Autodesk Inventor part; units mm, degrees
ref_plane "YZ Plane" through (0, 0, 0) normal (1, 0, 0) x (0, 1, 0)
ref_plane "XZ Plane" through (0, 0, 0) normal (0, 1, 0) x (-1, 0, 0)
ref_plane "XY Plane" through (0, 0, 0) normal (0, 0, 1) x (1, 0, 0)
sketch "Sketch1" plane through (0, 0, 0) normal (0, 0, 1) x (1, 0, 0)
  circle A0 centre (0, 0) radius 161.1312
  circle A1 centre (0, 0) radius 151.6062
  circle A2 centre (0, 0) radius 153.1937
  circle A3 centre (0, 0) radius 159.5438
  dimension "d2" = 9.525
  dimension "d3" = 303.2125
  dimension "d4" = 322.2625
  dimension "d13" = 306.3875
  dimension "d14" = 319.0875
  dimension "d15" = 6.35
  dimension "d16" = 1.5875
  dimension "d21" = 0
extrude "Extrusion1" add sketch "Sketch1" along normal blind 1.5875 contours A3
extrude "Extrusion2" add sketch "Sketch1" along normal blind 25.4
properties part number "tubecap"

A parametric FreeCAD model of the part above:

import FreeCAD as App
import Part
import Sketcher
Q = App.Units.Quantity

doc = App.newDocument("Part")
params = doc.addObject("Spreadsheet::Sheet", "Params")
for row, (alias, value) in enumerate([
    ("sketch1_diameter", "12.5625 in"),
    ("sketch1_diameter2", "12.0625 in"),
    ("pad1_length", "0.0625 in"),
    ("sketch2_diameter", "12.6875 in"),
    ("sketch2_diameter2", "12.5625 in"),
    ("sketch2_diameter3", "12.0625 in"),
    ("sketch2_diameter4", "11.9375 in"),
    ("pad2_length", "1 in"),
], start=1):
    params.set(f"A{row}", alias)
    params.set(f"B{row}", "=" + value)
    params.setAlias(f"B{row}", alias)

body = doc.addObject("PartDesign::Body", "Body")

# Sketch on XY plane
sketch1 = body.newObject("Sketcher::SketchObject", "Sketch")
sketch1.AttachmentSupport = (doc.getObject("XY_Plane"), [""])
sketch1.MapMode = "FlatFace"
sketch1.addGeometry(Part.Circle(App.Vector(0, 0, 0), App.Vector(0, 0, 1), 159.5438), False)
sketch1.addGeometry(Part.Circle(App.Vector(0, 0, 0), App.Vector(0, 0, 1), 153.1937), False)
sketch1.addConstraint(Sketcher.Constraint("Coincident", 0, 3, -1, 1))
sketch1.addConstraint(Sketcher.Constraint("Coincident", 1, 3, -1, 1))
sketch1.addConstraint(Sketcher.Constraint("Diameter", 0, Q("12.5625 in")))
sketch1.addConstraint(Sketcher.Constraint("Diameter", 1, Q("12.0625 in")))
sketch1.setExpression("Constraints[2]", "Params.sketch1_diameter")
sketch1.setExpression("Constraints[3]", "Params.sketch1_diameter2")
pad1 = body.newObject("PartDesign::Pad", "Pad")
pad1.Profile = sketch1
pad1.setExpression("Length", "Params.pad1_length")

# Sketch on XY plane
sketch2 = body.newObject("Sketcher::SketchObject", "Sketch001")
sketch2.AttachmentSupport = (doc.getObject("XY_Plane"), [""])
sketch2.MapMode = "FlatFace"
sketch2.addGeometry(Part.Circle(App.Vector(0, 0, 0), App.Vector(0, 0, 1), 161.1312), False)
sketch2.addGeometry(Part.Circle(App.Vector(0, 0, 0), App.Vector(0, 0, 1), 159.5438), False)
sketch2.addGeometry(Part.Circle(App.Vector(0, 0, 0), App.Vector(0, 0, 1), 153.1937), False)
sketch2.addGeometry(Part.Circle(App.Vector(0, 0, 0), App.Vector(0, 0, 1), 151.6062), False)
sketch2.addConstraint(Sketcher.Constraint("Coincident", 0, 3, -1, 1))
sketch2.addConstraint(Sketcher.Constraint("Coincident", 1, 3, -1, 1))
sketch2.addConstraint(Sketcher.Constraint("Coincident", 2, 3, -1, 1))
sketch2.addConstraint(Sketcher.Constraint("Coincident", 3, 3, -1, 1))
sketch2.addConstraint(Sketcher.Constraint("Diameter", 0, Q("12.6875 in")))
sketch2.addConstraint(Sketcher.Constraint("Diameter", 1, Q("12.5625 in")))
sketch2.addConstraint(Sketcher.Constraint("Diameter", 2, Q("12.0625 in")))
sketch2.addConstraint(Sketcher.Constraint("Diameter", 3, Q("11.9375 in")))
sketch2.setExpression("Constraints[4]", "Params.sketch2_diameter")
sketch2.setExpression("Constraints[5]", "Params.sketch2_diameter2")
sketch2.setExpression("Constraints[6]", "Params.sketch2_diameter3")
sketch2.setExpression("Constraints[7]", "Params.sketch2_diameter4")
pad2 = body.newObject("PartDesign::Pad", "Pad001")
pad2.Profile = sketch2
pad2.setExpression("Length", "Params.pad2_length")

doc.recompute()
